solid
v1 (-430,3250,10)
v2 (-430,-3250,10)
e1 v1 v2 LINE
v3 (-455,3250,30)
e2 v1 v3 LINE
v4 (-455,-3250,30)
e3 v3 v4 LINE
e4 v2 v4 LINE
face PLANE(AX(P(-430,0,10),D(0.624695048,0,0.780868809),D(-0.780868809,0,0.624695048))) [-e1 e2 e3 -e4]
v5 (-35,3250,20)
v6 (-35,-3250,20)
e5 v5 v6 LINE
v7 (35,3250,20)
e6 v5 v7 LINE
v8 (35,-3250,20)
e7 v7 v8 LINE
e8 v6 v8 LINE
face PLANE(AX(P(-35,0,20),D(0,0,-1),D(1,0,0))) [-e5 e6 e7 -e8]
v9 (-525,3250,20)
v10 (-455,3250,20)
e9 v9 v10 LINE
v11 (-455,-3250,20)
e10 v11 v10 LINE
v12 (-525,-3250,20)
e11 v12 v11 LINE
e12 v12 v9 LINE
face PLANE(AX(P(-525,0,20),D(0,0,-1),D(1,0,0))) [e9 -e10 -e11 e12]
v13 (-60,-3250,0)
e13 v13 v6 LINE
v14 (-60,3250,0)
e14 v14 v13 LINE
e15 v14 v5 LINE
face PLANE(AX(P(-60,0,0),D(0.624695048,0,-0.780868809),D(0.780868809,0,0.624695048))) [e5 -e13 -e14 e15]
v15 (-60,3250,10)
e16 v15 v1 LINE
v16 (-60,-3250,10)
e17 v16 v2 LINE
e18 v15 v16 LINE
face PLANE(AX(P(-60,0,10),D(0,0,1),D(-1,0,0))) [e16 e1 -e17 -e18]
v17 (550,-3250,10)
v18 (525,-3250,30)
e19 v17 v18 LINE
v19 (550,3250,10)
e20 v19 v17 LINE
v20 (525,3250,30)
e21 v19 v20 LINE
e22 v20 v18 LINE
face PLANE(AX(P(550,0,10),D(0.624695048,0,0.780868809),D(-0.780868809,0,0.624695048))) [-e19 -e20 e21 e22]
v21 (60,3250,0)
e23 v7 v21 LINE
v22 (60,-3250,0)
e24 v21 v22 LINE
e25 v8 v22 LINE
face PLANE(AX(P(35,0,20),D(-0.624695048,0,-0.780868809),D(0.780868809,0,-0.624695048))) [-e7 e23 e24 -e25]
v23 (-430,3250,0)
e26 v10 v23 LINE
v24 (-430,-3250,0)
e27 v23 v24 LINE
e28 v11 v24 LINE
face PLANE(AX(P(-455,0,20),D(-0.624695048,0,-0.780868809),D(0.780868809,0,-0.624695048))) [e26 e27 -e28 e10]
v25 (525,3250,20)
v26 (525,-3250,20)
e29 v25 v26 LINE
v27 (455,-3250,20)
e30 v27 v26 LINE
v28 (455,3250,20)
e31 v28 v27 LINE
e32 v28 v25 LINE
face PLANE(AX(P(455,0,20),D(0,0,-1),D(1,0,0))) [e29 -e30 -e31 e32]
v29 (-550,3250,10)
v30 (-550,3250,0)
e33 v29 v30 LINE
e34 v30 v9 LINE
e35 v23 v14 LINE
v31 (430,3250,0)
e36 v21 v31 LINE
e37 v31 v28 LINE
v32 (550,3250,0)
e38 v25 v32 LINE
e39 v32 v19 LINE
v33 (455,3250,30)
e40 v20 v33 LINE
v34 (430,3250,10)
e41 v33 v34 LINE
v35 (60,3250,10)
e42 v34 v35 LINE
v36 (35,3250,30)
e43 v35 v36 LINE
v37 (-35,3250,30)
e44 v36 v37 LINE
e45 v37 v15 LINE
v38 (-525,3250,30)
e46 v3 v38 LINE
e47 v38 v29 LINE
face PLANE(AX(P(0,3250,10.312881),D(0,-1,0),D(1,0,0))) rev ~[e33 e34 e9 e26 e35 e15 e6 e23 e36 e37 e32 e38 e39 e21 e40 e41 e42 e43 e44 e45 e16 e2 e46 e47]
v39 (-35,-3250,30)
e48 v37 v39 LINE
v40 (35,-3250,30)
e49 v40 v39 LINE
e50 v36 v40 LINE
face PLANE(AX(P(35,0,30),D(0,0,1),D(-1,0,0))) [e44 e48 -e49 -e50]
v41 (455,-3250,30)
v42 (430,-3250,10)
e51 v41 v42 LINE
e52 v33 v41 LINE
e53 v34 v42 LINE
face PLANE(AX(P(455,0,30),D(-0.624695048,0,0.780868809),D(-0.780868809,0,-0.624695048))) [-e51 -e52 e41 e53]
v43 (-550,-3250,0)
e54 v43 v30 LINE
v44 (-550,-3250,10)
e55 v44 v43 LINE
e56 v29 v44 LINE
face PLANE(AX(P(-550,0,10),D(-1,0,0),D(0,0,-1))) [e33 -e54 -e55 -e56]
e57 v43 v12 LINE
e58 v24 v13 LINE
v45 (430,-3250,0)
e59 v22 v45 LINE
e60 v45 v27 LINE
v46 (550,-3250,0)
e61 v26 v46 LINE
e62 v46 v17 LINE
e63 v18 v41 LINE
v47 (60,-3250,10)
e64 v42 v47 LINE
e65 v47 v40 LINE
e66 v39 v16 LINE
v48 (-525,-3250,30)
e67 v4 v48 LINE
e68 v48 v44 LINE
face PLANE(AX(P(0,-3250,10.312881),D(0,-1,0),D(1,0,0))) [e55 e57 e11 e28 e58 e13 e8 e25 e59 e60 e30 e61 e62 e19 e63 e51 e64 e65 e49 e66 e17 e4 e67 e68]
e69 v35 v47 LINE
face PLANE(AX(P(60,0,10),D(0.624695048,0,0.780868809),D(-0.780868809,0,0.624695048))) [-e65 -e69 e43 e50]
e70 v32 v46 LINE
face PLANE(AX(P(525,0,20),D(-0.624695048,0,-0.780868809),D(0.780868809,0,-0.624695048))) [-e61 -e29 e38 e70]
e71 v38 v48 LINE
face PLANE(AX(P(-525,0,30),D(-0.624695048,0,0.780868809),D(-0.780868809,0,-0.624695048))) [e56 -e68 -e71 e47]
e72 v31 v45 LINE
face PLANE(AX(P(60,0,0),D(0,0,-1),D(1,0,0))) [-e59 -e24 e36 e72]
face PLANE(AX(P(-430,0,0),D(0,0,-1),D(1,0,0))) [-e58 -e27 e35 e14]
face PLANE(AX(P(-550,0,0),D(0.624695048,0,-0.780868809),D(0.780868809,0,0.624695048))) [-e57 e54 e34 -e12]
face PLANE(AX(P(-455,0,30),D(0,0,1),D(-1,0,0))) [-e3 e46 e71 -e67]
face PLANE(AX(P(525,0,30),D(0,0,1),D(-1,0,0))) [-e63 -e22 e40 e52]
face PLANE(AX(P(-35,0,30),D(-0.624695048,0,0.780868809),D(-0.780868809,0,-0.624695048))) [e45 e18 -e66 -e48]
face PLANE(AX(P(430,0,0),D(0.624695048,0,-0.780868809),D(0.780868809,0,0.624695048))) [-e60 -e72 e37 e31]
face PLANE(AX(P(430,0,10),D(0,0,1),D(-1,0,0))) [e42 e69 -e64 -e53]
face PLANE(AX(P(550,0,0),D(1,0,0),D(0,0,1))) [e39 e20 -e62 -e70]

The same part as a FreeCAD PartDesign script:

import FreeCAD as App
import Part
import Sketcher

V = App.Vector
Q = App.Units.Quantity

doc = App.newDocument("Part")
body = doc.addObject("PartDesign::Body", "Body")

sketch1 = body.newObject("Sketcher::SketchObject", "Sketch")
sketch1.AttachmentSupport = (doc.getObject("XZ_Plane"), [""])
sketch1.MapMode = "FlatFace"
sketch1.addGeometry([
    Part.LineSegment(V(-455, 20, 0), V(-430, 0, 0)),
    Part.LineSegment(V(-430, 0, 0), V(-60, 0, 0)),
    Part.LineSegment(V(-60, 0, 0), V(-35, 20, 0)),
    Part.LineSegment(V(-35, 20, 0), V(35, 20, 0)),
    Part.LineSegment(V(35, 20, 0), V(60, 0, 0)),
    Part.LineSegment(V(60, 0, 0), V(430, 0, 0)),
    Part.LineSegment(V(430, 0, 0), V(455, 20, 0)),
    Part.LineSegment(V(455, 20, 0), V(525, 20, 0)),
    Part.LineSegment(V(525, 20, 0), V(550, 0, 0)),
    Part.LineSegment(V(550, 0, 0), V(550, 10, 0)),
    Part.LineSegment(V(550, 10, 0), V(525, 30, 0)),
    Part.LineSegment(V(525, 30, 0), V(455, 30, 0)),
    Part.LineSegment(V(455, 30, 0), V(430, 10, 0)),
    Part.LineSegment(V(430, 10, 0), V(60, 10, 0)),
    Part.LineSegment(V(60, 10, 0), V(35, 30, 0)),
    Part.LineSegment(V(35, 30, 0), V(-35, 30, 0)),
    Part.LineSegment(V(-35, 30, 0), V(-60, 10, 0)),
    Part.LineSegment(V(-60, 10, 0), V(-430, 10, 0)),
    Part.LineSegment(V(-430, 10, 0), V(-455, 30, 0)),
    Part.LineSegment(V(-455, 30, 0), V(-525, 30, 0)),
    Part.LineSegment(V(-525, 30, 0), V(-550, 10, 0)),
    Part.LineSegment(V(-550, 10, 0), V(-550, 0, 0)),
    Part.LineSegment(V(-550, 0, 0), V(-525, 20, 0)),
    Part.LineSegment(V(-525, 20, 0), V(-455, 20, 0)),
], False)
sketch1.addConstraint([
    Sketcher.Constraint("Coincident", 0, 2, 1, 1),
    Sketcher.Constraint("Coincident", 1, 2, 2, 1),
    Sketcher.Constraint("Coincident", 2, 2, 3, 1),
    Sketcher.Constraint("Coincident", 3, 2, 4, 1),
    Sketcher.Constraint("Coincident", 4, 2, 5, 1),
    Sketcher.Constraint("Coincident", 5, 2, 6, 1),
    Sketcher.Constraint("Coincident", 6, 2, 7, 1),
    Sketcher.Constraint("Coincident", 7, 2, 8, 1),
    Sketcher.Constraint("Coincident", 8, 2, 9, 1),
    Sketcher.Constraint("Coincident", 9, 2, 10, 1),
    Sketcher.Constraint("Coincident", 10, 2, 11, 1),
    Sketcher.Constraint("Coincident", 11, 2, 12, 1),
    Sketcher.Constraint("Coincident", 12, 2, 13, 1),
    Sketcher.Constraint("Coincident", 13, 2, 14, 1),
    Sketcher.Constraint("Coincident", 14, 2, 15, 1),
    Sketcher.Constraint("Coincident", 15, 2, 16, 1),
    Sketcher.Constraint("Coincident", 16, 2, 17, 1),
    Sketcher.Constraint("Coincident", 17, 2, 18, 1),
    Sketcher.Constraint("Coincident", 18, 2, 19, 1),
    Sketcher.Constraint("Coincident", 19, 2, 20, 1),
    Sketcher.Constraint("Coincident", 20, 2, 21, 1),
    Sketcher.Constraint("Coincident", 21, 2, 22, 1),
    Sketcher.Constraint("Coincident", 22, 2, 23, 1),
    Sketcher.Constraint("Coincident", 23, 2, 0, 1),
    Sketcher.Constraint("Horizontal", 1),
    Sketcher.Constraint("Horizontal", 3),
    Sketcher.Constraint("Horizontal", 5),
    Sketcher.Constraint("Horizontal", 7),
    Sketcher.Constraint("Vertical", 9),
    Sketcher.Constraint("Horizontal", 11),
    Sketcher.Constraint("Horizontal", 13),
    Sketcher.Constraint("Horizontal", 15),
    Sketcher.Constraint("Horizontal", 17),
    Sketcher.Constraint("Horizontal", 19),
    Sketcher.Constraint("Vertical", 21),
    Sketcher.Constraint("Horizontal", 23),
    Sketcher.Constraint("Symmetric", 1, 2, 4, 2, -1, 1),
    Sketcher.Constraint("Symmetric", 8, 2, 21, 2, -1, 1),
    Sketcher.Constraint("Symmetric", 0, 2, 5, 2, -2),
    Sketcher.Constraint("Symmetric", 13, 2, 16, 2, -2),
    Sketcher.Constraint("Symmetric", 11, 2, 18, 2, -2),
    Sketcher.Constraint("Symmetric", 7, 2, 22, 2, -2),
    Sketcher.Constraint("PointOnObject", 8, 2, -1),
    Sketcher.Constraint("Parallel", 0, 4),
    Sketcher.Constraint("Parallel", 2, 6),
    Sketcher.Constraint("Parallel", 4, 8),
    Sketcher.Constraint("Parallel", 8, 10),
    Sketcher.Constraint("Parallel", 6, 12),
    Sketcher.Constraint("Parallel", 10, 14),
    Sketcher.Constraint("Parallel", 12, 16),
    Sketcher.Constraint("Parallel", 14, 18),
    Sketcher.Constraint("Parallel", 16, 20),
    Sketcher.Constraint("Parallel", 20, 22),
    Sketcher.Constraint("Horizontal", 3, 2, 6, 2),
    Sketcher.Constraint("Horizontal", 9, 2, 12, 2),
    Sketcher.Constraint("Horizontal", 11, 2, 14, 2),
    Sketcher.Constraint("Horizontal", 17, 2, 20, 2),
    Sketcher.Constraint("Vertical", 7, 2, 10, 2),
    Sketcher.Constraint("Vertical", 6, 2, 11, 2),
    Sketcher.Constraint("Vertical", 4, 2, 13, 2),
    Sketcher.Constraint("Equal", 3, 7),
    Sketcher.Constraint("DistanceX", 1, 1, 1, 2, Q("370 mm")),
    Sketcher.Constraint("DistanceX", 3, 1, 3, 2, Q("70 mm")),
    Sketcher.Constraint("DistanceY", 9, 1, 9, 2, Q("10 mm")),
    Sketcher.Constraint("DistanceX", 0, 2, -1, 1, Q("430 mm")),
    Sketcher.Constraint("DistanceY", -1, 1, 2, 2, Q("20 mm")),
])
pad1 = body.newObject("PartDesign::Pad", "Pad")
pad1.Profile = sketch1
pad1.Length = 6500
pad1.Midplane = True

doc.recompute()
